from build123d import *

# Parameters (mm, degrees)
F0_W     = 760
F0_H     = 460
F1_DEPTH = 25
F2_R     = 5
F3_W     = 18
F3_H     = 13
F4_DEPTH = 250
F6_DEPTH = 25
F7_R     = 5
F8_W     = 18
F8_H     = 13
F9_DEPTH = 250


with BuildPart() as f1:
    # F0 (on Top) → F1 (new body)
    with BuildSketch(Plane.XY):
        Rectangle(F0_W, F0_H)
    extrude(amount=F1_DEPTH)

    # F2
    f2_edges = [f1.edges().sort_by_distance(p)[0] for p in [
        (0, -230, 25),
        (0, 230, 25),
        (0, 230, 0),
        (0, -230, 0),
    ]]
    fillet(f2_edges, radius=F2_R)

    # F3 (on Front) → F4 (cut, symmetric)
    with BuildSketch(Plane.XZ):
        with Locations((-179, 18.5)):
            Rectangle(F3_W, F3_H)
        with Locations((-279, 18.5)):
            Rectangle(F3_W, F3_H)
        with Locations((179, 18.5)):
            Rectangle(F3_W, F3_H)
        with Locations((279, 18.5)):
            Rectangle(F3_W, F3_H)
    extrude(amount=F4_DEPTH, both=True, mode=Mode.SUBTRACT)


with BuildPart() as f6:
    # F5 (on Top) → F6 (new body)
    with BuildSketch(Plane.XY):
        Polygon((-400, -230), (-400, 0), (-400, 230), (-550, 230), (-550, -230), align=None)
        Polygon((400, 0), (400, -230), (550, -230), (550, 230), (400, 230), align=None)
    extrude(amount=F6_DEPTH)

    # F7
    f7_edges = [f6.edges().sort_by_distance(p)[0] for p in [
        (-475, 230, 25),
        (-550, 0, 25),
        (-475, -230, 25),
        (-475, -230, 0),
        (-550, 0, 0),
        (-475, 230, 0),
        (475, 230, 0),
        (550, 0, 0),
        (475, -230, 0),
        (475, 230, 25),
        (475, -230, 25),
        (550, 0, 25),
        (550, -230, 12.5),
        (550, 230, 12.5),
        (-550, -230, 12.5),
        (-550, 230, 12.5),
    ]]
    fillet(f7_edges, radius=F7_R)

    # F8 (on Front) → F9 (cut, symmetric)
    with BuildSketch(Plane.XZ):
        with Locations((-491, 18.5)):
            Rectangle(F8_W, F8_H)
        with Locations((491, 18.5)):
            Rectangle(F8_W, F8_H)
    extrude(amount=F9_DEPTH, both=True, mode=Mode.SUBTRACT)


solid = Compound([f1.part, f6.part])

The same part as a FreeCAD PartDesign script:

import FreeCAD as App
import Part
import Sketcher


def edges_at(feature, points):
    """Names of the edges that pass closest to the given points."""
    edges = feature.Shape.Edges
    near = lambda p: min(range(len(edges)), key=lambda i: edges[i].distToShape(Part.Vertex(*p))[0])
    return sorted({f"Edge{near(p) + 1}" for p in points})

doc = App.newDocument("Part")
body = doc.addObject("PartDesign::Body", "Body")

# Sketch on XY plane
sketch1 = body.newObject("Sketcher::SketchObject", "Sketch")
sketch1.AttachmentSupport = (doc.getObject("XY_Plane"), [""])
sketch1.MapMode = "FlatFace"
sketch1.addGeometry([
    Part.LineSegment(App.Vector(-380, 230, 0), App.Vector(-380, -230, 0)),
    Part.LineSegment(App.Vector(-380, -230, 0), App.Vector(380, -230, 0)),
    Part.LineSegment(App.Vector(380, -230, 0), App.Vector(380, 230, 0)),
    Part.LineSegment(App.Vector(380, 230, 0), App.Vector(-380, 230, 0)),
], False)
sketch1.addConstraint([
    Sketcher.Constraint("Coincident", 0, 2, 1, 1),
    Sketcher.Constraint("Coincident", 1, 2, 2, 1),
    Sketcher.Constraint("Coincident", 2, 2, 3, 1),
    Sketcher.Constraint("Coincident", 3, 2, 0, 1),
    Sketcher.Constraint("Vertical", 0),
    Sketcher.Constraint("Horizontal", 1),
    Sketcher.Constraint("Vertical", 2),
    Sketcher.Constraint("Horizontal", 3),
    Sketcher.Constraint("Symmetric", 0, 2, 2, 2, -1, 1),
    Sketcher.Constraint("DistanceX", 1, 1, 1, 2, 760.0),
    Sketcher.Constraint("DistanceY", 0, 2, 0, 1, 460.0),
])
pad1 = body.newObject("PartDesign::Pad", "Pad")
pad1.Profile = sketch1
pad1.Length = 25
doc.recompute()

fillet = body.newObject("PartDesign::Fillet", "Fillet")
fillet.Base = (pad1, edges_at(pad1, [
    (0, -230, 25),
    (0, 230, 25),
    (0, 230, 0),
    (0, -230, 0),
]))
fillet.Radius = 5

# Sketch on XZ plane
sketch2 = body.newObject("Sketcher::SketchObject", "Sketch001")
sketch2.AttachmentSupport = (doc.getObject("XZ_Plane"), [""])
sketch2.MapMode = "FlatFace"
sketch2.addGeometry([
    Part.LineSegment(App.Vector(-188, 25, 0), App.Vector(-188, 12, 0)),  # 0
    Part.LineSegment(App.Vector(-188, 12, 0), App.Vector(-170, 12, 0)),  # 1
    Part.LineSegment(App.Vector(-170, 12, 0), App.Vector(-170, 25, 0)),  # 2
    Part.LineSegment(App.Vector(-170, 25, 0), App.Vector(-188, 25, 0)),  # 3
    Part.LineSegment(App.Vector(-288, 25, 0), App.Vector(-288, 12, 0)),  # 4
    Part.LineSegment(App.Vector(-288, 12, 0), App.Vector(-270, 12, 0)),  # 5
    Part.LineSegment(App.Vector(-270, 12, 0), App.Vector(-270, 25, 0)),  # 6
    Part.LineSegment(App.Vector(-270, 25, 0), App.Vector(-288, 25, 0)),  # 7
    Part.LineSegment(App.Vector(170, 25, 0), App.Vector(170, 12, 0)),  # 8
    Part.LineSegment(App.Vector(170, 12, 0), App.Vector(188, 12, 0)),  # 9
    Part.LineSegment(App.Vector(188, 12, 0), App.Vector(188, 25, 0)),  # 10
    Part.LineSegment(App.Vector(188, 25, 0), App.Vector(170, 25, 0)),  # 11
    Part.LineSegment(App.Vector(270, 25, 0), App.Vector(270, 12, 0)),  # 12
    Part.LineSegment(App.Vector(270, 12, 0), App.Vector(288, 12, 0)),  # 13
    Part.LineSegment(App.Vector(288, 12, 0), App.Vector(288, 25, 0)),  # 14
    Part.LineSegment(App.Vector(288, 25, 0), App.Vector(270, 25, 0)),  # 15
], False)
sketch2.addConstraint([
    Sketcher.Constraint("Coincident", 0, 2, 1, 1),
    Sketcher.Constraint("Coincident", 1, 2, 2, 1),
    Sketcher.Constraint("Coincident", 2, 2, 3, 1),
    Sketcher.Constraint("Coincident", 3, 2, 0, 1),
    Sketcher.Constraint("Coincident", 4, 2, 5, 1),
    Sketcher.Constraint("Coincident", 5, 2, 6, 1),
    Sketcher.Constraint("Coincident", 6, 2, 7, 1),
    Sketcher.Constraint("Coincident", 7, 2, 4, 1),
    Sketcher.Constraint("Coincident", 8, 2, 9, 1),
    Sketcher.Constraint("Coincident", 9, 2, 10, 1),
    Sketcher.Constraint("Coincident", 10, 2, 11, 1),
    Sketcher.Constraint("Coincident", 11, 2, 8, 1),
    Sketcher.Constraint("Coincident", 12, 2, 13, 1),
    Sketcher.Constraint("Coincident", 13, 2, 14, 1),
    Sketcher.Constraint("Coincident", 14, 2, 15, 1),
    Sketcher.Constraint("Coincident", 15, 2, 12, 1),
    Sketcher.Constraint("Vertical", 0),
    Sketcher.Constraint("Horizontal", 1),
    Sketcher.Constraint("Vertical", 2),
    Sketcher.Constraint("Horizontal", 3),
    Sketcher.Constraint("Vertical", 4),
    Sketcher.Constraint("Horizontal", 5),
    Sketcher.Constraint("Vertical", 6),
    Sketcher.Constraint("Horizontal", 7),
    Sketcher.Constraint("Vertical", 8),
    Sketcher.Constraint("Horizontal", 9),
    Sketcher.Constraint("Vertical", 10),
    Sketcher.Constraint("Horizontal", 11),
    Sketcher.Constraint("Vertical", 12),
    Sketcher.Constraint("Horizontal", 13),
    Sketcher.Constraint("Vertical", 14),
    Sketcher.Constraint("Horizontal", 15),
    Sketcher.Constraint("Symmetric", 1, 2, 8, 2, -2),
    Sketcher.Constraint("Symmetric", 3, 2, 10, 2, -2),
    Sketcher.Constraint("Symmetric", 5, 2, 12, 2, -2),
    Sketcher.Constraint("Symmetric", 7, 2, 14, 2, -2),
    Sketcher.Constraint("Horizontal", 1, 2, 4, 2),
    Sketcher.Constraint("Horizontal", 3, 2, 6, 2),
    Sketcher.Constraint("Equal", 3, 5),
    Sketcher.Constraint("DistanceX", 1, 1, 1, 2, 18.0),
    Sketcher.Constraint("DistanceY", 0, 2, 0, 1, 13.0),
    Sketcher.Constraint("DistanceX", 0, 2, -1, 1, 188.0),
    Sketcher.Constraint("DistanceY", -1, 1, 0, 2, 12.0),
    Sketcher.Constraint("DistanceX", 4, 2, -1, 1, 288.0),
])
pocket1 = body.newObject("PartDesign::Pocket", "Pocket")
pocket1.Profile = sketch2
pocket1.Length = 500
pocket1.Midplane = True
body2 = doc.addObject("PartDesign::Body", "Body001")
body2.AllowCompound = True

# Sketch on XY plane
sketch3 = body2.newObject("Sketcher::SketchObject", "Sketch002")
sketch3.AttachmentSupport = (doc.getObject("XY_Plane001"), [""])
sketch3.MapMode = "FlatFace"
sketch3.addGeometry([
    Part.LineSegment(App.Vector(-400, -230, 0), App.Vector(-400, 230, 0)),  # 0
    Part.LineSegment(App.Vector(-400, 230, 0), App.Vector(-550, 230, 0)),  # 1
    Part.LineSegment(App.Vector(-550, 230, 0), App.Vector(-550, -230, 0)),  # 2
    Part.LineSegment(App.Vector(-550, -230, 0), App.Vector(-400, -230, 0)),  # 3
    Part.LineSegment(App.Vector(400, -230, 0), App.Vector(550, -230, 0)),  # 4
    Part.LineSegment(App.Vector(550, -230, 0), App.Vector(550, 230, 0)),  # 5
    Part.LineSegment(App.Vector(550, 230, 0), App.Vector(400, 230, 0)),  # 6
    Part.LineSegment(App.Vector(400, 230, 0), App.Vector(400, -230, 0)),  # 7
], False)
sketch3.addConstraint([
    Sketcher.Constraint("Coincident", 0, 2, 1, 1),
    Sketcher.Constraint("Coincident", 1, 2, 2, 1),
    Sketcher.Constraint("Coincident", 2, 2, 3, 1),
    Sketcher.Constraint("Coincident", 3, 2, 0, 1),
    Sketcher.Constraint("Coincident", 4, 2, 5, 1),
    Sketcher.Constraint("Coincident", 5, 2, 6, 1),
    Sketcher.Constraint("Coincident", 6, 2, 7, 1),
    Sketcher.Constraint("Coincident", 7, 2, 4, 1),
    Sketcher.Constraint("Vertical", 0),
    Sketcher.Constraint("Horizontal", 1),
    Sketcher.Constraint("Vertical", 2),
    Sketcher.Constraint("Horizontal", 3),
    Sketcher.Constraint("Horizontal", 4),
    Sketcher.Constraint("Vertical", 5),
    Sketcher.Constraint("Horizontal", 6),
    Sketcher.Constraint("Vertical", 7),
    Sketcher.Constraint("Symmetric", 1, 2, 4, 2, -1, 1),
    Sketcher.Constraint("Symmetric", 3, 2, 6, 2, -1, 1),
    Sketcher.Constraint("Horizontal", 3, 2, 4, 2),
    Sketcher.Constraint("DistanceX", 1, 2, 1, 1, 150.0),
    Sketcher.Constraint("DistanceY", 0, 1, 0, 2, 460.0),
    Sketcher.Constraint("DistanceX", 0, 2, -1, 1, 400.0),
])
pad2 = body2.newObject("PartDesign::Pad", "Pad001")
pad2.Profile = sketch3
pad2.Length = 25
doc.recompute()

fillet2 = body2.newObject("PartDesign::Fillet", "Fillet001")
fillet2.Base = (pad2, edges_at(pad2, [
    (-475, 230, 25),
    (-550, 0, 25),
    (-475, -230, 25),
    (-475, -230, 0),
    (-550, 0, 0),
    (-475, 230, 0),
    (475, 230, 0),
    (550, 0, 0),
    (475, -230, 0),
    (475, 230, 25),
    (475, -230, 25),
    (550, 0, 25),
    (550, -230, 12.5),
    (550, 230, 12.5),
    (-550, -230, 12.5),
    (-550, 230, 12.5),
]))
fillet2.Radius = 5

# Sketch on XZ plane
sketch4 = body2.newObject("Sketcher::SketchObject", "Sketch003")
sketch4.AttachmentSupport = (doc.getObject("XZ_Plane001"), [""])
sketch4.MapMode = "FlatFace"
sketch4.addGeometry([
    Part.LineSegment(App.Vector(-500, 25, 0), App.Vector(-500, 12, 0)),  # 0
    Part.LineSegment(App.Vector(-500, 12, 0), App.Vector(-482, 12, 0)),  # 1
    Part.LineSegment(App.Vector(-482, 12, 0), App.Vector(-482, 25, 0)),  # 2
    Part.LineSegment(App.Vector(-482, 25, 0), App.Vector(-500, 25, 0)),  # 3
    Part.LineSegment(App.Vector(482, 25, 0), App.Vector(482, 12, 0)),  # 4
    Part.LineSegment(App.Vector(482, 12, 0), App.Vector(500, 12, 0)),  # 5
    Part.LineSegment(App.Vector(500, 12, 0), App.Vector(500, 25, 0)),  # 6
    Part.LineSegment(App.Vector(500, 25, 0), App.Vector(482, 25, 0)),  # 7
], False)
sketch4.addConstraint([
    Sketcher.Constraint("Coincident", 0, 2, 1, 1),
    Sketcher.Constraint("Coincident", 1, 2, 2, 1),
    Sketcher.Constraint("Coincident", 2, 2, 3, 1),
    Sketcher.Constraint("Coincident", 3, 2, 0, 1),
    Sketcher.Constraint("Coincident", 4, 2, 5, 1),
    Sketcher.Constraint("Coincident", 5, 2, 6, 1),
    Sketcher.Constraint("Coincident", 6, 2, 7, 1),
    Sketcher.Constraint("Coincident", 7, 2, 4, 1),
    Sketcher.Constraint("Vertical", 0),
    Sketcher.Constraint("Horizontal", 1),
    Sketcher.Constraint("Vertical", 2),
    Sketcher.Constraint("Horizontal", 3),
    Sketcher.Constraint("Vertical", 4),
    Sketcher.Constraint("Horizontal", 5),
    Sketcher.Constraint("Vertical", 6),
    Sketcher.Constraint("Horizontal", 7),
    Sketcher.Constraint("Symmetric", 1, 2, 4, 2, -2),
    Sketcher.Constraint("Symmetric", 3, 2, 6, 2, -2),
    Sketcher.Constraint("DistanceX", 1, 1, 1, 2, 18.0),
    Sketcher.Constraint("DistanceY", 0, 2, 0, 1, 13.0),
    Sketcher.Constraint("DistanceX", 0, 2, -1, 1, 500.0),
    Sketcher.Constraint("DistanceY", -1, 1, 0, 2, 12.0),
])
pocket2 = body2.newObject("PartDesign::Pocket", "Pocket001")
pocket2.Profile = sketch4
pocket2.Length = 500
pocket2.Midplane = True

doc.recompute()
